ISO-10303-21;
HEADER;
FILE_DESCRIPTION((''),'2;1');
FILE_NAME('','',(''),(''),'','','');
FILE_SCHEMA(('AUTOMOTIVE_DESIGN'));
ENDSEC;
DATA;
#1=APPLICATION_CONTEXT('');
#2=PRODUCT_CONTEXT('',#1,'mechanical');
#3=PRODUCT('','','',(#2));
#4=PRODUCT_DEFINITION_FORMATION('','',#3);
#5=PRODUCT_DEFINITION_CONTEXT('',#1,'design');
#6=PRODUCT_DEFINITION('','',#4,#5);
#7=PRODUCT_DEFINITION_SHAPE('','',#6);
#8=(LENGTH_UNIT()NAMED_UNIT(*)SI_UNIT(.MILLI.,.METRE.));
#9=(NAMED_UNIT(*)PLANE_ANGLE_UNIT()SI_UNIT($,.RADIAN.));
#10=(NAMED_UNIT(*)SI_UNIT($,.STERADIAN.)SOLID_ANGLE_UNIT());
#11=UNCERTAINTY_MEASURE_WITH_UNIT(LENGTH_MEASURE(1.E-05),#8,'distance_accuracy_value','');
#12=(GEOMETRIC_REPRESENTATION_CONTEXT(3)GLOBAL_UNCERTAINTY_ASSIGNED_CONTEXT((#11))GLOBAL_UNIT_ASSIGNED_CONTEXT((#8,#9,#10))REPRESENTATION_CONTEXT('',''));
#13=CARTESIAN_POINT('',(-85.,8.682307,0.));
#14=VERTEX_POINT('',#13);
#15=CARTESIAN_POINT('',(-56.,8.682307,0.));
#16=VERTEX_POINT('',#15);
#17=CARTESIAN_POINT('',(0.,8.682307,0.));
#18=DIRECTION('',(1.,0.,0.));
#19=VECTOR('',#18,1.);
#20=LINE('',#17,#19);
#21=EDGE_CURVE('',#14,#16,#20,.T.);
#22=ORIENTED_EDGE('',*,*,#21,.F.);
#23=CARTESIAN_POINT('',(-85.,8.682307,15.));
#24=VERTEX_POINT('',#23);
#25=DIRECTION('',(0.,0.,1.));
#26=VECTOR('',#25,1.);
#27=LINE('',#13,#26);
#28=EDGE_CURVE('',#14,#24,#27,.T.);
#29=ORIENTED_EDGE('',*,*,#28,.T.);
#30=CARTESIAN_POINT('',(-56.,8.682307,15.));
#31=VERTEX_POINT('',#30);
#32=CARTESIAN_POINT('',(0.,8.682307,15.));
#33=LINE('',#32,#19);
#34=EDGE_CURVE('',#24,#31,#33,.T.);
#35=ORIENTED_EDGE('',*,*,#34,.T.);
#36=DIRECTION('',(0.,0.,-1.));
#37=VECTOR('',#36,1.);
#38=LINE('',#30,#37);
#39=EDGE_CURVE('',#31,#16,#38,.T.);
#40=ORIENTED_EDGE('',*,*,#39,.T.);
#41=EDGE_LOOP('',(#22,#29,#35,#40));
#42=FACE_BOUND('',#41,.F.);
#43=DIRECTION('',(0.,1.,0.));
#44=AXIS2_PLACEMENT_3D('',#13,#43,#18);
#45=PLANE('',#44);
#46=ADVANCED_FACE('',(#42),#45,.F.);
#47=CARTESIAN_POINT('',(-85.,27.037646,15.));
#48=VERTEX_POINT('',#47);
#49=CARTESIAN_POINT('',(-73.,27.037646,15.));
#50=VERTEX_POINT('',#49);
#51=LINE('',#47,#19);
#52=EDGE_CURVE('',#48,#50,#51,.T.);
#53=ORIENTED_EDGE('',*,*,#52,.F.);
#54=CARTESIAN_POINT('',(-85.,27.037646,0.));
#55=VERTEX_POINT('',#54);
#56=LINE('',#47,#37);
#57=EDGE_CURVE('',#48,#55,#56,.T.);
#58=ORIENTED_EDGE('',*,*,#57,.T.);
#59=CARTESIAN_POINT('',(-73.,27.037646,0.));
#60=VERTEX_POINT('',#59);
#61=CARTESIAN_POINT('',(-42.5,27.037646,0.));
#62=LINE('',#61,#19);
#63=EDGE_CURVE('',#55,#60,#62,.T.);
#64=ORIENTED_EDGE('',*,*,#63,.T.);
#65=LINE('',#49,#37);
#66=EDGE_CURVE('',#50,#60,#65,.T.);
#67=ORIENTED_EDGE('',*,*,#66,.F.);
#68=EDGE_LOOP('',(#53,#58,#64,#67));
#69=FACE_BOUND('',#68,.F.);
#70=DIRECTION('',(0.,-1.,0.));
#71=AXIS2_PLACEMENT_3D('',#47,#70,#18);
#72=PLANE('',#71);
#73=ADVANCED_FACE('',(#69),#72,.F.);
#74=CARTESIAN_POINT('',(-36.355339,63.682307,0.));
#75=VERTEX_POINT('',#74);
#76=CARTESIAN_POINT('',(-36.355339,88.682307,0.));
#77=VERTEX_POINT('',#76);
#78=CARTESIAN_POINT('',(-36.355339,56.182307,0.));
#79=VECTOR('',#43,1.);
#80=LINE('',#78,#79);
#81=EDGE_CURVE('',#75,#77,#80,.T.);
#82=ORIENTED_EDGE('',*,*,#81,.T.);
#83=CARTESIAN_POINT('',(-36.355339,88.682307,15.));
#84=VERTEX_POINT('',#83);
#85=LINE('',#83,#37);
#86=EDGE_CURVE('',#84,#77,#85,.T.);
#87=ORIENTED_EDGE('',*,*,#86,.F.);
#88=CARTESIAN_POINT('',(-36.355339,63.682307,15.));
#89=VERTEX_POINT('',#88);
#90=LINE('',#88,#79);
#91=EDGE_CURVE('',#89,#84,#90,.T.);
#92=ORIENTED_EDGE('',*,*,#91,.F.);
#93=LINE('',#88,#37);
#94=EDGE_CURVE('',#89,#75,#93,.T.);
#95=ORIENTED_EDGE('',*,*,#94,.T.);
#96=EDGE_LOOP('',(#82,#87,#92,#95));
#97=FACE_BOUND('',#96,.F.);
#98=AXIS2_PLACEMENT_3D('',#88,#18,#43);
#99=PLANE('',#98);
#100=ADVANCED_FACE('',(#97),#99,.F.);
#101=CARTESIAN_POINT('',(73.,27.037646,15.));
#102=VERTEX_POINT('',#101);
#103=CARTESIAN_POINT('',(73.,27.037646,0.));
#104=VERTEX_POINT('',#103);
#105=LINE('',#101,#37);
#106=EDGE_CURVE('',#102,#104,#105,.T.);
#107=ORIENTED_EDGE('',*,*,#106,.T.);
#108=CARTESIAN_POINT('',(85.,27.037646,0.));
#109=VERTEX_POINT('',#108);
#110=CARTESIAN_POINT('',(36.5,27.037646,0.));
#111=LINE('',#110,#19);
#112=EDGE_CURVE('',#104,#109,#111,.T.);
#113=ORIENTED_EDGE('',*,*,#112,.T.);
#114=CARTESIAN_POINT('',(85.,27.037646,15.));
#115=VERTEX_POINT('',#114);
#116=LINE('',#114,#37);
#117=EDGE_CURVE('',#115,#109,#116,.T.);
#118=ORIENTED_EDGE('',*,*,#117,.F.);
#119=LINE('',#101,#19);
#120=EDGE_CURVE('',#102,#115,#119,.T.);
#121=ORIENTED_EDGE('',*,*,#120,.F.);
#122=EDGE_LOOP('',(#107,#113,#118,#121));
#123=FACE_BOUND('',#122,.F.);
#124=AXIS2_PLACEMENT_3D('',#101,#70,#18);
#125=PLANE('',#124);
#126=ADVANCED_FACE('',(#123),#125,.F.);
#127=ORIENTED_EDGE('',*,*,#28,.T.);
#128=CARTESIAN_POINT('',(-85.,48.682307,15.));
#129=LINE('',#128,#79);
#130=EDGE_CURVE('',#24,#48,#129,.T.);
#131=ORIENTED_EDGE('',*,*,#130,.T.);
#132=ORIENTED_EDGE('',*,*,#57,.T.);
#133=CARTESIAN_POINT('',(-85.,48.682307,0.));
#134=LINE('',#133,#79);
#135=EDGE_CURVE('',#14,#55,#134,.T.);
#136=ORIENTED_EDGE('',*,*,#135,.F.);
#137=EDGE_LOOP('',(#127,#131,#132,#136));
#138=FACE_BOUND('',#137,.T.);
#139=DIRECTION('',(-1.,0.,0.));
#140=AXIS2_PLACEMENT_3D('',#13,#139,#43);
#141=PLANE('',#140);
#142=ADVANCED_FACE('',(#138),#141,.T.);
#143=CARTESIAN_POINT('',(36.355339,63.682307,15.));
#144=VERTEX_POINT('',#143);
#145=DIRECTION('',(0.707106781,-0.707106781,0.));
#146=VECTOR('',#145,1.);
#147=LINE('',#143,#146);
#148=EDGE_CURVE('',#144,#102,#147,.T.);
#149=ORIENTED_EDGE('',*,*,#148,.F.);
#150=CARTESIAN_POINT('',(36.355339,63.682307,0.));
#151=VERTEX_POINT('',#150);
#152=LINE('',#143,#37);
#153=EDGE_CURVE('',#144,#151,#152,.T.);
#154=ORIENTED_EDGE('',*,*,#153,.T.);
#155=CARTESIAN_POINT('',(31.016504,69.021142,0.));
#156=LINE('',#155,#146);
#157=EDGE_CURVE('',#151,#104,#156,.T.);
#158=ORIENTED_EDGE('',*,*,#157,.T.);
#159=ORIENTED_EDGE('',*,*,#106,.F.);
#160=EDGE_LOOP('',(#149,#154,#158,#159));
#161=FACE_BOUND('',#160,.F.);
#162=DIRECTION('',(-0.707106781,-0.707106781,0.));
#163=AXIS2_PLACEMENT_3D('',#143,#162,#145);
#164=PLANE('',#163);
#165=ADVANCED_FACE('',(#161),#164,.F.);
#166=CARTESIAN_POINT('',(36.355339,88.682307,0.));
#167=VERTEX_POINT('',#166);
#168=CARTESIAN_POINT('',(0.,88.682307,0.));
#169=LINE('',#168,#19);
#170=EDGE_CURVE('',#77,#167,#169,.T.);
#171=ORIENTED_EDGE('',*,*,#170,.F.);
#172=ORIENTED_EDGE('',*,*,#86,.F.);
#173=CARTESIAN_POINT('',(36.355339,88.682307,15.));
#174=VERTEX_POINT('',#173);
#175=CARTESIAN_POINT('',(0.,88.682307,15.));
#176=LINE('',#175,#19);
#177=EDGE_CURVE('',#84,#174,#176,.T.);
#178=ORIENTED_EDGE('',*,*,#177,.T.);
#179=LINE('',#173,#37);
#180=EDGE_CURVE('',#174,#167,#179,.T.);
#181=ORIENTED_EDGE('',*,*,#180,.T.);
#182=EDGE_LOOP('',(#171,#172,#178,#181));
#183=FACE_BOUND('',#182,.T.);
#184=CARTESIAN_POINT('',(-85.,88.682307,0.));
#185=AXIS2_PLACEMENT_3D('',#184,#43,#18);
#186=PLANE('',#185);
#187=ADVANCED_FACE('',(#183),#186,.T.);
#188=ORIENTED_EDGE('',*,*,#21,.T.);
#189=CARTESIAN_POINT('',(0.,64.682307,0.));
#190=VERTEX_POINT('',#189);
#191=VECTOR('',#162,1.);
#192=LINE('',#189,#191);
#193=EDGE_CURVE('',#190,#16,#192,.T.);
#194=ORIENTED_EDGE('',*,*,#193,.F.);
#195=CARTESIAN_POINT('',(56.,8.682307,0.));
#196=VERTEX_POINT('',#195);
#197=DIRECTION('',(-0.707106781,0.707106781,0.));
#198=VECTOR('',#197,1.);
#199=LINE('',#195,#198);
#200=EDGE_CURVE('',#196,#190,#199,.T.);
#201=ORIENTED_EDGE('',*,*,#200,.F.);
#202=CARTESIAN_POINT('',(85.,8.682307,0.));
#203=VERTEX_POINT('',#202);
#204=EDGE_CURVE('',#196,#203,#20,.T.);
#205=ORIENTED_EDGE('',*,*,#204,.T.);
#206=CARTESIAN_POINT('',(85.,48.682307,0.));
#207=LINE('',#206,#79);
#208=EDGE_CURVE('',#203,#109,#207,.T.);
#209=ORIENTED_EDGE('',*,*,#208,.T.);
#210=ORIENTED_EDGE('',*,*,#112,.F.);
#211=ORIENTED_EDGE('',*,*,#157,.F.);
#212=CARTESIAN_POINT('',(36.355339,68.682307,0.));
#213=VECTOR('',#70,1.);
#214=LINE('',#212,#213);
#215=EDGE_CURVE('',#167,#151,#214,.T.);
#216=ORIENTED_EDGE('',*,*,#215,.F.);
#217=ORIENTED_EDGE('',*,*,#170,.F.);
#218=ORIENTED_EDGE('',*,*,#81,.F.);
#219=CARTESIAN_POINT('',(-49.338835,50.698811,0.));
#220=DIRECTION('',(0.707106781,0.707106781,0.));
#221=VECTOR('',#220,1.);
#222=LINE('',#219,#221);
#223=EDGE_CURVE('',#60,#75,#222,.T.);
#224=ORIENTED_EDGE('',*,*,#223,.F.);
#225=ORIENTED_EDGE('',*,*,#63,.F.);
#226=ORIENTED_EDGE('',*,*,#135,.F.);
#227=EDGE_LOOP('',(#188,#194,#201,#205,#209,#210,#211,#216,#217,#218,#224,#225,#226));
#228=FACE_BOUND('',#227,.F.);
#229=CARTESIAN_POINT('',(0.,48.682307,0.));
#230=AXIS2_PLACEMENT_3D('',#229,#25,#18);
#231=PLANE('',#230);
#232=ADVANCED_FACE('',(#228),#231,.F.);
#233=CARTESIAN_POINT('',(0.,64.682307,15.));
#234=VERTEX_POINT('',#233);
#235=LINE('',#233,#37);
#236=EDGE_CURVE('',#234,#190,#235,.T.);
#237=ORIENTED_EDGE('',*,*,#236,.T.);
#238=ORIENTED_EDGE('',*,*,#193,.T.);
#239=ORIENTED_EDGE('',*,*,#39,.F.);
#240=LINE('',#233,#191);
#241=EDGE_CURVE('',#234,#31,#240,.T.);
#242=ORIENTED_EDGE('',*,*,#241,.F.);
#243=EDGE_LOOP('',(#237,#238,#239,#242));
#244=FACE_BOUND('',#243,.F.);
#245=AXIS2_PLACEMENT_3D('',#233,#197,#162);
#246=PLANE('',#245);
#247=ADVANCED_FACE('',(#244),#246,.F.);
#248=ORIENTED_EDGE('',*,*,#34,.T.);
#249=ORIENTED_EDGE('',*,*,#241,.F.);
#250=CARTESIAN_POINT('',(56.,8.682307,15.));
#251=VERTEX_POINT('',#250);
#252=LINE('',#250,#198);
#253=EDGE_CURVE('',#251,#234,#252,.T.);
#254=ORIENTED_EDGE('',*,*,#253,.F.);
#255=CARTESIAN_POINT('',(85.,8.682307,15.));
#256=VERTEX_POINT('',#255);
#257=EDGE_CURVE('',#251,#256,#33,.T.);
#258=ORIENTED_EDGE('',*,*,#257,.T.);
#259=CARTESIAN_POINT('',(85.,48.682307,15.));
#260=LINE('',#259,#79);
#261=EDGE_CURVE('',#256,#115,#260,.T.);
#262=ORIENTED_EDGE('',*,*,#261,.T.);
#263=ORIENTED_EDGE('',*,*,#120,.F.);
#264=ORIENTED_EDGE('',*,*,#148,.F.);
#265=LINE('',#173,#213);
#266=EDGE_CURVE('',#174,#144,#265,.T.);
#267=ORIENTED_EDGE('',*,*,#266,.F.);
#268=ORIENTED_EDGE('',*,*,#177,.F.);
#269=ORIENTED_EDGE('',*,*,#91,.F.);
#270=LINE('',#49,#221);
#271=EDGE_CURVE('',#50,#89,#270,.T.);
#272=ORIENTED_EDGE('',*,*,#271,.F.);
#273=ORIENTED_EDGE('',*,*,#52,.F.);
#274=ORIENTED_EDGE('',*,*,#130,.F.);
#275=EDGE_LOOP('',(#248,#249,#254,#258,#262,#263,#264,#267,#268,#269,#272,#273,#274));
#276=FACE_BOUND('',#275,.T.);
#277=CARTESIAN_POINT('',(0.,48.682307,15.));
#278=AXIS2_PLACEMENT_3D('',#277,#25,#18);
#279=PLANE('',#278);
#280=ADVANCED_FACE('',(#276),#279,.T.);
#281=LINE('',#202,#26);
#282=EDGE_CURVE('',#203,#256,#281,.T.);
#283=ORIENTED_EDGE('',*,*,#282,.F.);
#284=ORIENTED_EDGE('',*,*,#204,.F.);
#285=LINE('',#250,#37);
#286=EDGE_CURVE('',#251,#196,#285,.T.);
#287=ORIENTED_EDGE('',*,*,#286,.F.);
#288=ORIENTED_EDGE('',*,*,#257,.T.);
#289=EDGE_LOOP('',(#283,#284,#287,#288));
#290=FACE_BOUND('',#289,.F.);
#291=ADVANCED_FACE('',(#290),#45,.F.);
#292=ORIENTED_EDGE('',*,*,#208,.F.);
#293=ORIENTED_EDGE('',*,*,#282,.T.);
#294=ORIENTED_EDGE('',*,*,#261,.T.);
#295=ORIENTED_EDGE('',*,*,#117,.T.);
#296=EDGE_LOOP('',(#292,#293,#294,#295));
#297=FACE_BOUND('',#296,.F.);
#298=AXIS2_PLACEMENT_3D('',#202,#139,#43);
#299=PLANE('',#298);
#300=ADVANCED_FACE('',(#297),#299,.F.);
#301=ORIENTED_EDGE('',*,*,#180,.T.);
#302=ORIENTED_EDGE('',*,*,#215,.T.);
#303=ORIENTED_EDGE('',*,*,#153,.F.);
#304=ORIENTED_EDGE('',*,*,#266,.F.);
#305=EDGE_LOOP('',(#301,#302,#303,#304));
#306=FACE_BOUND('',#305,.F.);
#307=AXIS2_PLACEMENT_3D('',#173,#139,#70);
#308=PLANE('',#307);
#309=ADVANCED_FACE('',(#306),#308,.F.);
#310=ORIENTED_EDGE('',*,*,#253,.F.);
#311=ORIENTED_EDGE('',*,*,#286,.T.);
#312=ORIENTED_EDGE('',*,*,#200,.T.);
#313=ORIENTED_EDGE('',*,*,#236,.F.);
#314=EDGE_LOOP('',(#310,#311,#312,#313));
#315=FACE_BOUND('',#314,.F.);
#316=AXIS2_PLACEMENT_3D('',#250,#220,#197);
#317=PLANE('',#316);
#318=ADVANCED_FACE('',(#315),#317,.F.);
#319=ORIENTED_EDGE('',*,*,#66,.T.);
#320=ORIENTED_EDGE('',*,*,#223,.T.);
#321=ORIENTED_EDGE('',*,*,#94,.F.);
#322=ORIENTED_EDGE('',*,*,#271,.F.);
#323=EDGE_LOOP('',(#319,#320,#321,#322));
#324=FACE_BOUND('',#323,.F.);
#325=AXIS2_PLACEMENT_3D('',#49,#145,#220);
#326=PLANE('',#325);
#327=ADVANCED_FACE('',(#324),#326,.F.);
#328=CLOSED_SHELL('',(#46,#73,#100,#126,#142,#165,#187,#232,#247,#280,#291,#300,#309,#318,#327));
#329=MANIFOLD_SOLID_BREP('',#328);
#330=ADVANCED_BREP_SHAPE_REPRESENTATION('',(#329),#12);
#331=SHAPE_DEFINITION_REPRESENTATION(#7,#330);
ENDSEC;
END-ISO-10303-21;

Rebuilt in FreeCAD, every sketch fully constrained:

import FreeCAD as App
import Part
import Sketcher
Q = App.Units.Quantity


def add_polygon(sketch, points):
    """Adds a closed chain of lines whose ends are joined by coincident constraints."""
    first, n = sketch.GeometryCount, len(points)
    for a, b in zip(points, points[1:] + points[:1]):
        sketch.addGeometry(Part.LineSegment(App.Vector(*a, 0), App.Vector(*b, 0)), False)
    for i in range(n):
        sketch.addConstraint(Sketcher.Constraint("Coincident", first + i, 2, first + (i + 1) % n, 1))

doc = App.newDocument("Part")
body = doc.addObject("PartDesign::Body", "Body")

sketch1 = doc.addObject("Sketcher::SketchObject", "Sketch")
body.addObject(sketch1)
sketch1.AttachmentSupport = (doc.XY_Plane, [""])
sketch1.MapMode = "FlatFace"
add_polygon(sketch1, [(-85, 89), (-85, 9), (85, 9), (85, 89)])
sketch1.addConstraint([
    Sketcher.Constraint("Vertical", 0),
    Sketcher.Constraint("Horizontal", 1),
    Sketcher.Constraint("Vertical", 2),
    Sketcher.Constraint("Horizontal", 3),
    Sketcher.Constraint("DistanceX", 1, 1, 1, 2, Q("170 mm")),
    Sketcher.Constraint("DistanceY", 0, 2, 0, 1, Q("80 mm")),
    Sketcher.Constraint("DistanceX", 0, 2, -1, 1, Q("85 mm")),
    Sketcher.Constraint("DistanceY", -1, 1, 0, 2, Q("8.682307 mm")),
])
pad1 = doc.addObject("PartDesign::Pad", "Pad")
body.addObject(pad1)
pad1.Profile = sketch1
pad1.Length = 15

sketch2 = doc.addObject("Sketcher::SketchObject", "Sketch001")
body.addObject(sketch2)
sketch2.AttachmentSupport = (doc.XY_Plane, [""])
sketch2.MapMode = "FlatFace"
sketch2.AttachmentOffset = App.Placement(App.Vector(0, 0, 15), App.Rotation())
add_polygon(sketch2, [(0, 65), (-56, 9), (56, 9)])
sketch2.addConstraint([
    Sketcher.Constraint("Horizontal", 1),
    Sketcher.Constraint("PointOnObject", 2, 2, -2),
    Sketcher.Constraint("Perpendicular", 0, 2),
    Sketcher.Constraint("Equal", 0, 2),
    Sketcher.Constraint("DistanceX", 1, 1, 1, 2, Q("112 mm")),
    Sketcher.Constraint("DistanceY", -1, 1, 0, 2, Q("8.682307 mm")),
])
pocket1 = doc.addObject("PartDesign::Pocket", "Pocket")
body.addObject(pocket1)
pocket1.Profile = sketch2
pocket1.Length = 15

sketch3 = doc.addObject("Sketcher::SketchObject", "Sketch002")
body.addObject(sketch3)
sketch3.AttachmentSupport = (doc.XY_Plane, [""])
sketch3.MapMode = "FlatFace"
sketch3.AttachmentOffset = App.Placement(App.Vector(0, 0, 15), App.Rotation())
add_polygon(sketch3, [(-85, 89), (-85, 27), (-73, 27), (-36, 64), (-36, 89)])
add_polygon(sketch3, [(85, 89), (36, 89), (36, 64), (73, 27), (85, 27)])
sketch3.addConstraint([
    Sketcher.Constraint("Vertical", 0),
    Sketcher.Constraint("Horizontal", 1),
    Sketcher.Constraint("Vertical", 3),
    Sketcher.Constraint("Horizontal", 4),
    Sketcher.Constraint("Horizontal", 5),
    Sketcher.Constraint("Vertical", 6),
    Sketcher.Constraint("Horizontal", 8),
    Sketcher.Constraint("Vertical", 9),
    Sketcher.Constraint("Symmetric", 3, 2, 5, 2, -2),
    Sketcher.Constraint("Symmetric", 1, 2, 7, 2, -2),
    Sketcher.Constraint("Perpendicular", 2, 7),
    Sketcher.Constraint("Horizontal", 2, 2, 6, 2),
    Sketcher.Constraint("Equal", 4, 5),
    Sketcher.Constraint("DistanceX", 1, 1, 1, 2, Q("12 mm")),
    Sketcher.Constraint("DistanceY", 3, 1, 3, 2, Q("25 mm")),
    Sketcher.Constraint("DistanceX", 0, 2, -1, 1, Q("85 mm")),
    Sketcher.Constraint("DistanceX", 4, 2, 4, 1, Q("48.644661 mm")),
    Sketcher.Constraint("DistanceY", -1, 1, 0, 2, Q("27.037646 mm")),
])
pocket2 = doc.addObject("PartDesign::Pocket", "Pocket001")
body.addObject(pocket2)
pocket2.Profile = sketch3
pocket2.Length = 25

doc.recompute()
